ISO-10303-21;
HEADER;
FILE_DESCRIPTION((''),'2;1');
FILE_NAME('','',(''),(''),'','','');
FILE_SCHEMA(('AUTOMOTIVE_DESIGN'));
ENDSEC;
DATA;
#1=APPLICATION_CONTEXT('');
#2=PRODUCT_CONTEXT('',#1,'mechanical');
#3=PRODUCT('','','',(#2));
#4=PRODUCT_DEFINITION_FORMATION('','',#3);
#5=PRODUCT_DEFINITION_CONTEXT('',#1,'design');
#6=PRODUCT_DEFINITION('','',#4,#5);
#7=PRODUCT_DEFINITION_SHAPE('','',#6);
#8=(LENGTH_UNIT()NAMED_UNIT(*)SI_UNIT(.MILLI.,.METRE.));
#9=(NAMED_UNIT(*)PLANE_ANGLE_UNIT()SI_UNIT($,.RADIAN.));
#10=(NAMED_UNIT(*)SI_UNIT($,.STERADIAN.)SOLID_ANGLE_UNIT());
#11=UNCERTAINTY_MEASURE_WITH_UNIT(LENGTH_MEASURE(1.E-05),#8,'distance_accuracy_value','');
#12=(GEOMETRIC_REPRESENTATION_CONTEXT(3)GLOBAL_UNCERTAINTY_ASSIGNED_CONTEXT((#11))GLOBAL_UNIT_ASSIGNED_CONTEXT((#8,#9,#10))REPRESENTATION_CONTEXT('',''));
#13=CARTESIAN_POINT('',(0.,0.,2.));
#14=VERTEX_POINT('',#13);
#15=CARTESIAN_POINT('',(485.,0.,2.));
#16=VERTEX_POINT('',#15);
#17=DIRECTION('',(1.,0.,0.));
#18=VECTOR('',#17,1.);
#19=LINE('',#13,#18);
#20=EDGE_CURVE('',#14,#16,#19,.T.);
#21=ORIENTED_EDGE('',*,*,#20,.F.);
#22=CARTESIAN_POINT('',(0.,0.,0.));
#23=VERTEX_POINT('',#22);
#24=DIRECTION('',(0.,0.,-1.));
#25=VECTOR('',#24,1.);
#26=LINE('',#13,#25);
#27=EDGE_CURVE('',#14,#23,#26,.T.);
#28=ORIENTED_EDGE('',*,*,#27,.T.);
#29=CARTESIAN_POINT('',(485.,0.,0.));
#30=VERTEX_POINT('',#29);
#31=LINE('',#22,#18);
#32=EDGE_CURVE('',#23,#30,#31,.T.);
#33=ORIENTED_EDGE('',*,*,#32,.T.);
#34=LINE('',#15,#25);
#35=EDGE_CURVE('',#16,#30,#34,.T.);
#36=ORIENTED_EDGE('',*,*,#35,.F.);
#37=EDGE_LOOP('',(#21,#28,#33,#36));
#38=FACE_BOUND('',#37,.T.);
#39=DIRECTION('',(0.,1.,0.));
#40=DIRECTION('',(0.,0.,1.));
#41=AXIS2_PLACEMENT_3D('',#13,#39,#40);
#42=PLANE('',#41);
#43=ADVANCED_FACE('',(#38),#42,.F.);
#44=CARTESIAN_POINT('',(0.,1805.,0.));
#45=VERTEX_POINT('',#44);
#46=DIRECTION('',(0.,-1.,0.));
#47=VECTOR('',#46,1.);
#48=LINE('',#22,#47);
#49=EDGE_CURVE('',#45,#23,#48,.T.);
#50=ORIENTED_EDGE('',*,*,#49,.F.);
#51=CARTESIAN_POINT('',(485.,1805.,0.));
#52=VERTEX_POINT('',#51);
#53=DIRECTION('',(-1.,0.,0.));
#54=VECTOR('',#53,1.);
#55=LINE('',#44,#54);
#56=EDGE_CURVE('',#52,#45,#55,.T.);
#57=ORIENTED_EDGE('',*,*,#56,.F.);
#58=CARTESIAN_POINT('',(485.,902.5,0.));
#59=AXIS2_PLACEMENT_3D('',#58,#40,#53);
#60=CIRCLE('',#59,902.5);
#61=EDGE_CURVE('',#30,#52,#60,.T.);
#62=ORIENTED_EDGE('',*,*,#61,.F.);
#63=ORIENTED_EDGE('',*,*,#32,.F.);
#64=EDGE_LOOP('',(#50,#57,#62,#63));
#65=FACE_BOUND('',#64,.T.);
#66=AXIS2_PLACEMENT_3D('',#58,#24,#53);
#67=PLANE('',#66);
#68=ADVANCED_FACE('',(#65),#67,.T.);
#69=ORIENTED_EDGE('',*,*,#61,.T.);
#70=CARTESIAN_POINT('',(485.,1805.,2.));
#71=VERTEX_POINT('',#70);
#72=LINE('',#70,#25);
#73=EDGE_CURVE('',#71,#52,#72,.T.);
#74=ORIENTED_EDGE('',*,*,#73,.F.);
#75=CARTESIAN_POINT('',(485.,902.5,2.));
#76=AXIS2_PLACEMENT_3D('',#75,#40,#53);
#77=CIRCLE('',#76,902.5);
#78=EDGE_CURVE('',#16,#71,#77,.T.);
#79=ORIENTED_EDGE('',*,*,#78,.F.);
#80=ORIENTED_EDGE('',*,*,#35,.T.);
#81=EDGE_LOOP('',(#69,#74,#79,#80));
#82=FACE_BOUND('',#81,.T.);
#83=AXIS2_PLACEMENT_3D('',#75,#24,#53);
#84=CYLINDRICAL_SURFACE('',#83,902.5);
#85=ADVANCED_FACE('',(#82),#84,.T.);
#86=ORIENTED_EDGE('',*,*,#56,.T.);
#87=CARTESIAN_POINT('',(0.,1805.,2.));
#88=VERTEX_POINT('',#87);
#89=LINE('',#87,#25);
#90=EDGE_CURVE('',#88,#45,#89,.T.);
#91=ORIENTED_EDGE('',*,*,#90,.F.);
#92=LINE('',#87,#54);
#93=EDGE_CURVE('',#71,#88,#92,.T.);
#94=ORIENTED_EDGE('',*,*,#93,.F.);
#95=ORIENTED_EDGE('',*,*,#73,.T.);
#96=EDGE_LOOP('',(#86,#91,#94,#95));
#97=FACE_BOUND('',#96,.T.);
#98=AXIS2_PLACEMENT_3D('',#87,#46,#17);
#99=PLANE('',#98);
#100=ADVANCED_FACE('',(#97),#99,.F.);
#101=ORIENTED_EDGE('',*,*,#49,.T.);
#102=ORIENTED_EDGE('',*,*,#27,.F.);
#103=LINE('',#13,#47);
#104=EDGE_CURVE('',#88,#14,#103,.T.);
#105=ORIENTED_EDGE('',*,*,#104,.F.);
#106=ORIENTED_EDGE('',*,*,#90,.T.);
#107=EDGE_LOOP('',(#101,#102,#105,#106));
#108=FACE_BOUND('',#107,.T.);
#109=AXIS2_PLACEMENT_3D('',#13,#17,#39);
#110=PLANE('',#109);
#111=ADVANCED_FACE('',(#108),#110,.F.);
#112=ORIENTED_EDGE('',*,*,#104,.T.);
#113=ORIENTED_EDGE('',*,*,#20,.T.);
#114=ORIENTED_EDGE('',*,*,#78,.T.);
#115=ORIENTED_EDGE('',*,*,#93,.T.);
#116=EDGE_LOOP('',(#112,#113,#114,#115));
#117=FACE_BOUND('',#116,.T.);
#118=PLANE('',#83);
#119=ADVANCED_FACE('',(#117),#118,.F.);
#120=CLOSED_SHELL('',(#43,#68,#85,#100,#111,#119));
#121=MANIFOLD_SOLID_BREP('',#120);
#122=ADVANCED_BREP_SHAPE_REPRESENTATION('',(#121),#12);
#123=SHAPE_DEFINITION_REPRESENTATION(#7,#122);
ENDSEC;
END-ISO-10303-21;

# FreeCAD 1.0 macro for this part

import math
import FreeCAD as App
import Part
import Sketcher
from FreeCAD import Vector

doc = App.newDocument("Part")
params = doc.addObject("Spreadsheet::Sheet", "Params")
for row, (alias, value) in enumerate([
    ("sketch1_radius", "902.5 mm"),
    ("sketch1_width", "485 mm"),
    ("pad1_length", "2 mm"),
], start=1):
    params.set(f"A{row}", alias)
    params.set(f"B{row}", "=" + value)
    params.setAlias(f"B{row}", alias)

body = doc.addObject("PartDesign::Body", "Body")

# Sketch on XY plane
sketch1 = body.newObject("Sketcher::SketchObject", "Sketch")
sketch1.AttachmentSupport = (doc.getObject("XY_Plane"), [""])
sketch1.MapMode = "FlatFace"
sketch1.addGeometry(Part.LineSegment(Vector(0, 0, 0), Vector(485, 0, 0)), False)
sketch1.addGeometry(Part.ArcOfCircle(Part.Circle(Vector(485, 902, 0), Vector(0, 0, 1), 902), math.radians(-90), math.radians(90)), False)
sketch1.addGeometry(Part.LineSegment(Vector(485, 1805, 0), Vector(0, 1805, 0)), False)
sketch1.addGeometry(Part.LineSegment(Vector(0, 1805, 0), Vector(0, 0, 0)), False)
sketch1.addConstraint(Sketcher.Constraint("Tangent", 0, 2, 1, 1))
sketch1.addConstraint(Sketcher.Constraint("Tangent", 1, 2, 2, 1))
sketch1.addConstraint(Sketcher.Constraint("Coincident", 2, 2, 3, 1))
sketch1.addConstraint(Sketcher.Constraint("Coincident", 3, 2, 0, 1))
sketch1.addConstraint(Sketcher.Constraint("Horizontal", 0))
sketch1.addConstraint(Sketcher.Constraint("Horizontal", 2))
sketch1.addConstraint(Sketcher.Constraint("Vertical", 3))
sketch1.addConstraint(Sketcher.Constraint("Coincident", 3, 2, -1, 1))
sketch1.addConstraint(Sketcher.Constraint("Radius", 1, 902.5))
sketch1.addConstraint(Sketcher.Constraint("DistanceX", 0, 1, 0, 2, 485.0))
sketch1.setExpression("Constraints[8]", "Params.sketch1_radius")
sketch1.setExpression("Constraints[9]", "Params.sketch1_width")
pad1 = body.newObject("PartDesign::Pad", "Pad")
pad1.Profile = sketch1
pad1.setExpression("Length", "Params.pad1_length")

doc.recompute()
